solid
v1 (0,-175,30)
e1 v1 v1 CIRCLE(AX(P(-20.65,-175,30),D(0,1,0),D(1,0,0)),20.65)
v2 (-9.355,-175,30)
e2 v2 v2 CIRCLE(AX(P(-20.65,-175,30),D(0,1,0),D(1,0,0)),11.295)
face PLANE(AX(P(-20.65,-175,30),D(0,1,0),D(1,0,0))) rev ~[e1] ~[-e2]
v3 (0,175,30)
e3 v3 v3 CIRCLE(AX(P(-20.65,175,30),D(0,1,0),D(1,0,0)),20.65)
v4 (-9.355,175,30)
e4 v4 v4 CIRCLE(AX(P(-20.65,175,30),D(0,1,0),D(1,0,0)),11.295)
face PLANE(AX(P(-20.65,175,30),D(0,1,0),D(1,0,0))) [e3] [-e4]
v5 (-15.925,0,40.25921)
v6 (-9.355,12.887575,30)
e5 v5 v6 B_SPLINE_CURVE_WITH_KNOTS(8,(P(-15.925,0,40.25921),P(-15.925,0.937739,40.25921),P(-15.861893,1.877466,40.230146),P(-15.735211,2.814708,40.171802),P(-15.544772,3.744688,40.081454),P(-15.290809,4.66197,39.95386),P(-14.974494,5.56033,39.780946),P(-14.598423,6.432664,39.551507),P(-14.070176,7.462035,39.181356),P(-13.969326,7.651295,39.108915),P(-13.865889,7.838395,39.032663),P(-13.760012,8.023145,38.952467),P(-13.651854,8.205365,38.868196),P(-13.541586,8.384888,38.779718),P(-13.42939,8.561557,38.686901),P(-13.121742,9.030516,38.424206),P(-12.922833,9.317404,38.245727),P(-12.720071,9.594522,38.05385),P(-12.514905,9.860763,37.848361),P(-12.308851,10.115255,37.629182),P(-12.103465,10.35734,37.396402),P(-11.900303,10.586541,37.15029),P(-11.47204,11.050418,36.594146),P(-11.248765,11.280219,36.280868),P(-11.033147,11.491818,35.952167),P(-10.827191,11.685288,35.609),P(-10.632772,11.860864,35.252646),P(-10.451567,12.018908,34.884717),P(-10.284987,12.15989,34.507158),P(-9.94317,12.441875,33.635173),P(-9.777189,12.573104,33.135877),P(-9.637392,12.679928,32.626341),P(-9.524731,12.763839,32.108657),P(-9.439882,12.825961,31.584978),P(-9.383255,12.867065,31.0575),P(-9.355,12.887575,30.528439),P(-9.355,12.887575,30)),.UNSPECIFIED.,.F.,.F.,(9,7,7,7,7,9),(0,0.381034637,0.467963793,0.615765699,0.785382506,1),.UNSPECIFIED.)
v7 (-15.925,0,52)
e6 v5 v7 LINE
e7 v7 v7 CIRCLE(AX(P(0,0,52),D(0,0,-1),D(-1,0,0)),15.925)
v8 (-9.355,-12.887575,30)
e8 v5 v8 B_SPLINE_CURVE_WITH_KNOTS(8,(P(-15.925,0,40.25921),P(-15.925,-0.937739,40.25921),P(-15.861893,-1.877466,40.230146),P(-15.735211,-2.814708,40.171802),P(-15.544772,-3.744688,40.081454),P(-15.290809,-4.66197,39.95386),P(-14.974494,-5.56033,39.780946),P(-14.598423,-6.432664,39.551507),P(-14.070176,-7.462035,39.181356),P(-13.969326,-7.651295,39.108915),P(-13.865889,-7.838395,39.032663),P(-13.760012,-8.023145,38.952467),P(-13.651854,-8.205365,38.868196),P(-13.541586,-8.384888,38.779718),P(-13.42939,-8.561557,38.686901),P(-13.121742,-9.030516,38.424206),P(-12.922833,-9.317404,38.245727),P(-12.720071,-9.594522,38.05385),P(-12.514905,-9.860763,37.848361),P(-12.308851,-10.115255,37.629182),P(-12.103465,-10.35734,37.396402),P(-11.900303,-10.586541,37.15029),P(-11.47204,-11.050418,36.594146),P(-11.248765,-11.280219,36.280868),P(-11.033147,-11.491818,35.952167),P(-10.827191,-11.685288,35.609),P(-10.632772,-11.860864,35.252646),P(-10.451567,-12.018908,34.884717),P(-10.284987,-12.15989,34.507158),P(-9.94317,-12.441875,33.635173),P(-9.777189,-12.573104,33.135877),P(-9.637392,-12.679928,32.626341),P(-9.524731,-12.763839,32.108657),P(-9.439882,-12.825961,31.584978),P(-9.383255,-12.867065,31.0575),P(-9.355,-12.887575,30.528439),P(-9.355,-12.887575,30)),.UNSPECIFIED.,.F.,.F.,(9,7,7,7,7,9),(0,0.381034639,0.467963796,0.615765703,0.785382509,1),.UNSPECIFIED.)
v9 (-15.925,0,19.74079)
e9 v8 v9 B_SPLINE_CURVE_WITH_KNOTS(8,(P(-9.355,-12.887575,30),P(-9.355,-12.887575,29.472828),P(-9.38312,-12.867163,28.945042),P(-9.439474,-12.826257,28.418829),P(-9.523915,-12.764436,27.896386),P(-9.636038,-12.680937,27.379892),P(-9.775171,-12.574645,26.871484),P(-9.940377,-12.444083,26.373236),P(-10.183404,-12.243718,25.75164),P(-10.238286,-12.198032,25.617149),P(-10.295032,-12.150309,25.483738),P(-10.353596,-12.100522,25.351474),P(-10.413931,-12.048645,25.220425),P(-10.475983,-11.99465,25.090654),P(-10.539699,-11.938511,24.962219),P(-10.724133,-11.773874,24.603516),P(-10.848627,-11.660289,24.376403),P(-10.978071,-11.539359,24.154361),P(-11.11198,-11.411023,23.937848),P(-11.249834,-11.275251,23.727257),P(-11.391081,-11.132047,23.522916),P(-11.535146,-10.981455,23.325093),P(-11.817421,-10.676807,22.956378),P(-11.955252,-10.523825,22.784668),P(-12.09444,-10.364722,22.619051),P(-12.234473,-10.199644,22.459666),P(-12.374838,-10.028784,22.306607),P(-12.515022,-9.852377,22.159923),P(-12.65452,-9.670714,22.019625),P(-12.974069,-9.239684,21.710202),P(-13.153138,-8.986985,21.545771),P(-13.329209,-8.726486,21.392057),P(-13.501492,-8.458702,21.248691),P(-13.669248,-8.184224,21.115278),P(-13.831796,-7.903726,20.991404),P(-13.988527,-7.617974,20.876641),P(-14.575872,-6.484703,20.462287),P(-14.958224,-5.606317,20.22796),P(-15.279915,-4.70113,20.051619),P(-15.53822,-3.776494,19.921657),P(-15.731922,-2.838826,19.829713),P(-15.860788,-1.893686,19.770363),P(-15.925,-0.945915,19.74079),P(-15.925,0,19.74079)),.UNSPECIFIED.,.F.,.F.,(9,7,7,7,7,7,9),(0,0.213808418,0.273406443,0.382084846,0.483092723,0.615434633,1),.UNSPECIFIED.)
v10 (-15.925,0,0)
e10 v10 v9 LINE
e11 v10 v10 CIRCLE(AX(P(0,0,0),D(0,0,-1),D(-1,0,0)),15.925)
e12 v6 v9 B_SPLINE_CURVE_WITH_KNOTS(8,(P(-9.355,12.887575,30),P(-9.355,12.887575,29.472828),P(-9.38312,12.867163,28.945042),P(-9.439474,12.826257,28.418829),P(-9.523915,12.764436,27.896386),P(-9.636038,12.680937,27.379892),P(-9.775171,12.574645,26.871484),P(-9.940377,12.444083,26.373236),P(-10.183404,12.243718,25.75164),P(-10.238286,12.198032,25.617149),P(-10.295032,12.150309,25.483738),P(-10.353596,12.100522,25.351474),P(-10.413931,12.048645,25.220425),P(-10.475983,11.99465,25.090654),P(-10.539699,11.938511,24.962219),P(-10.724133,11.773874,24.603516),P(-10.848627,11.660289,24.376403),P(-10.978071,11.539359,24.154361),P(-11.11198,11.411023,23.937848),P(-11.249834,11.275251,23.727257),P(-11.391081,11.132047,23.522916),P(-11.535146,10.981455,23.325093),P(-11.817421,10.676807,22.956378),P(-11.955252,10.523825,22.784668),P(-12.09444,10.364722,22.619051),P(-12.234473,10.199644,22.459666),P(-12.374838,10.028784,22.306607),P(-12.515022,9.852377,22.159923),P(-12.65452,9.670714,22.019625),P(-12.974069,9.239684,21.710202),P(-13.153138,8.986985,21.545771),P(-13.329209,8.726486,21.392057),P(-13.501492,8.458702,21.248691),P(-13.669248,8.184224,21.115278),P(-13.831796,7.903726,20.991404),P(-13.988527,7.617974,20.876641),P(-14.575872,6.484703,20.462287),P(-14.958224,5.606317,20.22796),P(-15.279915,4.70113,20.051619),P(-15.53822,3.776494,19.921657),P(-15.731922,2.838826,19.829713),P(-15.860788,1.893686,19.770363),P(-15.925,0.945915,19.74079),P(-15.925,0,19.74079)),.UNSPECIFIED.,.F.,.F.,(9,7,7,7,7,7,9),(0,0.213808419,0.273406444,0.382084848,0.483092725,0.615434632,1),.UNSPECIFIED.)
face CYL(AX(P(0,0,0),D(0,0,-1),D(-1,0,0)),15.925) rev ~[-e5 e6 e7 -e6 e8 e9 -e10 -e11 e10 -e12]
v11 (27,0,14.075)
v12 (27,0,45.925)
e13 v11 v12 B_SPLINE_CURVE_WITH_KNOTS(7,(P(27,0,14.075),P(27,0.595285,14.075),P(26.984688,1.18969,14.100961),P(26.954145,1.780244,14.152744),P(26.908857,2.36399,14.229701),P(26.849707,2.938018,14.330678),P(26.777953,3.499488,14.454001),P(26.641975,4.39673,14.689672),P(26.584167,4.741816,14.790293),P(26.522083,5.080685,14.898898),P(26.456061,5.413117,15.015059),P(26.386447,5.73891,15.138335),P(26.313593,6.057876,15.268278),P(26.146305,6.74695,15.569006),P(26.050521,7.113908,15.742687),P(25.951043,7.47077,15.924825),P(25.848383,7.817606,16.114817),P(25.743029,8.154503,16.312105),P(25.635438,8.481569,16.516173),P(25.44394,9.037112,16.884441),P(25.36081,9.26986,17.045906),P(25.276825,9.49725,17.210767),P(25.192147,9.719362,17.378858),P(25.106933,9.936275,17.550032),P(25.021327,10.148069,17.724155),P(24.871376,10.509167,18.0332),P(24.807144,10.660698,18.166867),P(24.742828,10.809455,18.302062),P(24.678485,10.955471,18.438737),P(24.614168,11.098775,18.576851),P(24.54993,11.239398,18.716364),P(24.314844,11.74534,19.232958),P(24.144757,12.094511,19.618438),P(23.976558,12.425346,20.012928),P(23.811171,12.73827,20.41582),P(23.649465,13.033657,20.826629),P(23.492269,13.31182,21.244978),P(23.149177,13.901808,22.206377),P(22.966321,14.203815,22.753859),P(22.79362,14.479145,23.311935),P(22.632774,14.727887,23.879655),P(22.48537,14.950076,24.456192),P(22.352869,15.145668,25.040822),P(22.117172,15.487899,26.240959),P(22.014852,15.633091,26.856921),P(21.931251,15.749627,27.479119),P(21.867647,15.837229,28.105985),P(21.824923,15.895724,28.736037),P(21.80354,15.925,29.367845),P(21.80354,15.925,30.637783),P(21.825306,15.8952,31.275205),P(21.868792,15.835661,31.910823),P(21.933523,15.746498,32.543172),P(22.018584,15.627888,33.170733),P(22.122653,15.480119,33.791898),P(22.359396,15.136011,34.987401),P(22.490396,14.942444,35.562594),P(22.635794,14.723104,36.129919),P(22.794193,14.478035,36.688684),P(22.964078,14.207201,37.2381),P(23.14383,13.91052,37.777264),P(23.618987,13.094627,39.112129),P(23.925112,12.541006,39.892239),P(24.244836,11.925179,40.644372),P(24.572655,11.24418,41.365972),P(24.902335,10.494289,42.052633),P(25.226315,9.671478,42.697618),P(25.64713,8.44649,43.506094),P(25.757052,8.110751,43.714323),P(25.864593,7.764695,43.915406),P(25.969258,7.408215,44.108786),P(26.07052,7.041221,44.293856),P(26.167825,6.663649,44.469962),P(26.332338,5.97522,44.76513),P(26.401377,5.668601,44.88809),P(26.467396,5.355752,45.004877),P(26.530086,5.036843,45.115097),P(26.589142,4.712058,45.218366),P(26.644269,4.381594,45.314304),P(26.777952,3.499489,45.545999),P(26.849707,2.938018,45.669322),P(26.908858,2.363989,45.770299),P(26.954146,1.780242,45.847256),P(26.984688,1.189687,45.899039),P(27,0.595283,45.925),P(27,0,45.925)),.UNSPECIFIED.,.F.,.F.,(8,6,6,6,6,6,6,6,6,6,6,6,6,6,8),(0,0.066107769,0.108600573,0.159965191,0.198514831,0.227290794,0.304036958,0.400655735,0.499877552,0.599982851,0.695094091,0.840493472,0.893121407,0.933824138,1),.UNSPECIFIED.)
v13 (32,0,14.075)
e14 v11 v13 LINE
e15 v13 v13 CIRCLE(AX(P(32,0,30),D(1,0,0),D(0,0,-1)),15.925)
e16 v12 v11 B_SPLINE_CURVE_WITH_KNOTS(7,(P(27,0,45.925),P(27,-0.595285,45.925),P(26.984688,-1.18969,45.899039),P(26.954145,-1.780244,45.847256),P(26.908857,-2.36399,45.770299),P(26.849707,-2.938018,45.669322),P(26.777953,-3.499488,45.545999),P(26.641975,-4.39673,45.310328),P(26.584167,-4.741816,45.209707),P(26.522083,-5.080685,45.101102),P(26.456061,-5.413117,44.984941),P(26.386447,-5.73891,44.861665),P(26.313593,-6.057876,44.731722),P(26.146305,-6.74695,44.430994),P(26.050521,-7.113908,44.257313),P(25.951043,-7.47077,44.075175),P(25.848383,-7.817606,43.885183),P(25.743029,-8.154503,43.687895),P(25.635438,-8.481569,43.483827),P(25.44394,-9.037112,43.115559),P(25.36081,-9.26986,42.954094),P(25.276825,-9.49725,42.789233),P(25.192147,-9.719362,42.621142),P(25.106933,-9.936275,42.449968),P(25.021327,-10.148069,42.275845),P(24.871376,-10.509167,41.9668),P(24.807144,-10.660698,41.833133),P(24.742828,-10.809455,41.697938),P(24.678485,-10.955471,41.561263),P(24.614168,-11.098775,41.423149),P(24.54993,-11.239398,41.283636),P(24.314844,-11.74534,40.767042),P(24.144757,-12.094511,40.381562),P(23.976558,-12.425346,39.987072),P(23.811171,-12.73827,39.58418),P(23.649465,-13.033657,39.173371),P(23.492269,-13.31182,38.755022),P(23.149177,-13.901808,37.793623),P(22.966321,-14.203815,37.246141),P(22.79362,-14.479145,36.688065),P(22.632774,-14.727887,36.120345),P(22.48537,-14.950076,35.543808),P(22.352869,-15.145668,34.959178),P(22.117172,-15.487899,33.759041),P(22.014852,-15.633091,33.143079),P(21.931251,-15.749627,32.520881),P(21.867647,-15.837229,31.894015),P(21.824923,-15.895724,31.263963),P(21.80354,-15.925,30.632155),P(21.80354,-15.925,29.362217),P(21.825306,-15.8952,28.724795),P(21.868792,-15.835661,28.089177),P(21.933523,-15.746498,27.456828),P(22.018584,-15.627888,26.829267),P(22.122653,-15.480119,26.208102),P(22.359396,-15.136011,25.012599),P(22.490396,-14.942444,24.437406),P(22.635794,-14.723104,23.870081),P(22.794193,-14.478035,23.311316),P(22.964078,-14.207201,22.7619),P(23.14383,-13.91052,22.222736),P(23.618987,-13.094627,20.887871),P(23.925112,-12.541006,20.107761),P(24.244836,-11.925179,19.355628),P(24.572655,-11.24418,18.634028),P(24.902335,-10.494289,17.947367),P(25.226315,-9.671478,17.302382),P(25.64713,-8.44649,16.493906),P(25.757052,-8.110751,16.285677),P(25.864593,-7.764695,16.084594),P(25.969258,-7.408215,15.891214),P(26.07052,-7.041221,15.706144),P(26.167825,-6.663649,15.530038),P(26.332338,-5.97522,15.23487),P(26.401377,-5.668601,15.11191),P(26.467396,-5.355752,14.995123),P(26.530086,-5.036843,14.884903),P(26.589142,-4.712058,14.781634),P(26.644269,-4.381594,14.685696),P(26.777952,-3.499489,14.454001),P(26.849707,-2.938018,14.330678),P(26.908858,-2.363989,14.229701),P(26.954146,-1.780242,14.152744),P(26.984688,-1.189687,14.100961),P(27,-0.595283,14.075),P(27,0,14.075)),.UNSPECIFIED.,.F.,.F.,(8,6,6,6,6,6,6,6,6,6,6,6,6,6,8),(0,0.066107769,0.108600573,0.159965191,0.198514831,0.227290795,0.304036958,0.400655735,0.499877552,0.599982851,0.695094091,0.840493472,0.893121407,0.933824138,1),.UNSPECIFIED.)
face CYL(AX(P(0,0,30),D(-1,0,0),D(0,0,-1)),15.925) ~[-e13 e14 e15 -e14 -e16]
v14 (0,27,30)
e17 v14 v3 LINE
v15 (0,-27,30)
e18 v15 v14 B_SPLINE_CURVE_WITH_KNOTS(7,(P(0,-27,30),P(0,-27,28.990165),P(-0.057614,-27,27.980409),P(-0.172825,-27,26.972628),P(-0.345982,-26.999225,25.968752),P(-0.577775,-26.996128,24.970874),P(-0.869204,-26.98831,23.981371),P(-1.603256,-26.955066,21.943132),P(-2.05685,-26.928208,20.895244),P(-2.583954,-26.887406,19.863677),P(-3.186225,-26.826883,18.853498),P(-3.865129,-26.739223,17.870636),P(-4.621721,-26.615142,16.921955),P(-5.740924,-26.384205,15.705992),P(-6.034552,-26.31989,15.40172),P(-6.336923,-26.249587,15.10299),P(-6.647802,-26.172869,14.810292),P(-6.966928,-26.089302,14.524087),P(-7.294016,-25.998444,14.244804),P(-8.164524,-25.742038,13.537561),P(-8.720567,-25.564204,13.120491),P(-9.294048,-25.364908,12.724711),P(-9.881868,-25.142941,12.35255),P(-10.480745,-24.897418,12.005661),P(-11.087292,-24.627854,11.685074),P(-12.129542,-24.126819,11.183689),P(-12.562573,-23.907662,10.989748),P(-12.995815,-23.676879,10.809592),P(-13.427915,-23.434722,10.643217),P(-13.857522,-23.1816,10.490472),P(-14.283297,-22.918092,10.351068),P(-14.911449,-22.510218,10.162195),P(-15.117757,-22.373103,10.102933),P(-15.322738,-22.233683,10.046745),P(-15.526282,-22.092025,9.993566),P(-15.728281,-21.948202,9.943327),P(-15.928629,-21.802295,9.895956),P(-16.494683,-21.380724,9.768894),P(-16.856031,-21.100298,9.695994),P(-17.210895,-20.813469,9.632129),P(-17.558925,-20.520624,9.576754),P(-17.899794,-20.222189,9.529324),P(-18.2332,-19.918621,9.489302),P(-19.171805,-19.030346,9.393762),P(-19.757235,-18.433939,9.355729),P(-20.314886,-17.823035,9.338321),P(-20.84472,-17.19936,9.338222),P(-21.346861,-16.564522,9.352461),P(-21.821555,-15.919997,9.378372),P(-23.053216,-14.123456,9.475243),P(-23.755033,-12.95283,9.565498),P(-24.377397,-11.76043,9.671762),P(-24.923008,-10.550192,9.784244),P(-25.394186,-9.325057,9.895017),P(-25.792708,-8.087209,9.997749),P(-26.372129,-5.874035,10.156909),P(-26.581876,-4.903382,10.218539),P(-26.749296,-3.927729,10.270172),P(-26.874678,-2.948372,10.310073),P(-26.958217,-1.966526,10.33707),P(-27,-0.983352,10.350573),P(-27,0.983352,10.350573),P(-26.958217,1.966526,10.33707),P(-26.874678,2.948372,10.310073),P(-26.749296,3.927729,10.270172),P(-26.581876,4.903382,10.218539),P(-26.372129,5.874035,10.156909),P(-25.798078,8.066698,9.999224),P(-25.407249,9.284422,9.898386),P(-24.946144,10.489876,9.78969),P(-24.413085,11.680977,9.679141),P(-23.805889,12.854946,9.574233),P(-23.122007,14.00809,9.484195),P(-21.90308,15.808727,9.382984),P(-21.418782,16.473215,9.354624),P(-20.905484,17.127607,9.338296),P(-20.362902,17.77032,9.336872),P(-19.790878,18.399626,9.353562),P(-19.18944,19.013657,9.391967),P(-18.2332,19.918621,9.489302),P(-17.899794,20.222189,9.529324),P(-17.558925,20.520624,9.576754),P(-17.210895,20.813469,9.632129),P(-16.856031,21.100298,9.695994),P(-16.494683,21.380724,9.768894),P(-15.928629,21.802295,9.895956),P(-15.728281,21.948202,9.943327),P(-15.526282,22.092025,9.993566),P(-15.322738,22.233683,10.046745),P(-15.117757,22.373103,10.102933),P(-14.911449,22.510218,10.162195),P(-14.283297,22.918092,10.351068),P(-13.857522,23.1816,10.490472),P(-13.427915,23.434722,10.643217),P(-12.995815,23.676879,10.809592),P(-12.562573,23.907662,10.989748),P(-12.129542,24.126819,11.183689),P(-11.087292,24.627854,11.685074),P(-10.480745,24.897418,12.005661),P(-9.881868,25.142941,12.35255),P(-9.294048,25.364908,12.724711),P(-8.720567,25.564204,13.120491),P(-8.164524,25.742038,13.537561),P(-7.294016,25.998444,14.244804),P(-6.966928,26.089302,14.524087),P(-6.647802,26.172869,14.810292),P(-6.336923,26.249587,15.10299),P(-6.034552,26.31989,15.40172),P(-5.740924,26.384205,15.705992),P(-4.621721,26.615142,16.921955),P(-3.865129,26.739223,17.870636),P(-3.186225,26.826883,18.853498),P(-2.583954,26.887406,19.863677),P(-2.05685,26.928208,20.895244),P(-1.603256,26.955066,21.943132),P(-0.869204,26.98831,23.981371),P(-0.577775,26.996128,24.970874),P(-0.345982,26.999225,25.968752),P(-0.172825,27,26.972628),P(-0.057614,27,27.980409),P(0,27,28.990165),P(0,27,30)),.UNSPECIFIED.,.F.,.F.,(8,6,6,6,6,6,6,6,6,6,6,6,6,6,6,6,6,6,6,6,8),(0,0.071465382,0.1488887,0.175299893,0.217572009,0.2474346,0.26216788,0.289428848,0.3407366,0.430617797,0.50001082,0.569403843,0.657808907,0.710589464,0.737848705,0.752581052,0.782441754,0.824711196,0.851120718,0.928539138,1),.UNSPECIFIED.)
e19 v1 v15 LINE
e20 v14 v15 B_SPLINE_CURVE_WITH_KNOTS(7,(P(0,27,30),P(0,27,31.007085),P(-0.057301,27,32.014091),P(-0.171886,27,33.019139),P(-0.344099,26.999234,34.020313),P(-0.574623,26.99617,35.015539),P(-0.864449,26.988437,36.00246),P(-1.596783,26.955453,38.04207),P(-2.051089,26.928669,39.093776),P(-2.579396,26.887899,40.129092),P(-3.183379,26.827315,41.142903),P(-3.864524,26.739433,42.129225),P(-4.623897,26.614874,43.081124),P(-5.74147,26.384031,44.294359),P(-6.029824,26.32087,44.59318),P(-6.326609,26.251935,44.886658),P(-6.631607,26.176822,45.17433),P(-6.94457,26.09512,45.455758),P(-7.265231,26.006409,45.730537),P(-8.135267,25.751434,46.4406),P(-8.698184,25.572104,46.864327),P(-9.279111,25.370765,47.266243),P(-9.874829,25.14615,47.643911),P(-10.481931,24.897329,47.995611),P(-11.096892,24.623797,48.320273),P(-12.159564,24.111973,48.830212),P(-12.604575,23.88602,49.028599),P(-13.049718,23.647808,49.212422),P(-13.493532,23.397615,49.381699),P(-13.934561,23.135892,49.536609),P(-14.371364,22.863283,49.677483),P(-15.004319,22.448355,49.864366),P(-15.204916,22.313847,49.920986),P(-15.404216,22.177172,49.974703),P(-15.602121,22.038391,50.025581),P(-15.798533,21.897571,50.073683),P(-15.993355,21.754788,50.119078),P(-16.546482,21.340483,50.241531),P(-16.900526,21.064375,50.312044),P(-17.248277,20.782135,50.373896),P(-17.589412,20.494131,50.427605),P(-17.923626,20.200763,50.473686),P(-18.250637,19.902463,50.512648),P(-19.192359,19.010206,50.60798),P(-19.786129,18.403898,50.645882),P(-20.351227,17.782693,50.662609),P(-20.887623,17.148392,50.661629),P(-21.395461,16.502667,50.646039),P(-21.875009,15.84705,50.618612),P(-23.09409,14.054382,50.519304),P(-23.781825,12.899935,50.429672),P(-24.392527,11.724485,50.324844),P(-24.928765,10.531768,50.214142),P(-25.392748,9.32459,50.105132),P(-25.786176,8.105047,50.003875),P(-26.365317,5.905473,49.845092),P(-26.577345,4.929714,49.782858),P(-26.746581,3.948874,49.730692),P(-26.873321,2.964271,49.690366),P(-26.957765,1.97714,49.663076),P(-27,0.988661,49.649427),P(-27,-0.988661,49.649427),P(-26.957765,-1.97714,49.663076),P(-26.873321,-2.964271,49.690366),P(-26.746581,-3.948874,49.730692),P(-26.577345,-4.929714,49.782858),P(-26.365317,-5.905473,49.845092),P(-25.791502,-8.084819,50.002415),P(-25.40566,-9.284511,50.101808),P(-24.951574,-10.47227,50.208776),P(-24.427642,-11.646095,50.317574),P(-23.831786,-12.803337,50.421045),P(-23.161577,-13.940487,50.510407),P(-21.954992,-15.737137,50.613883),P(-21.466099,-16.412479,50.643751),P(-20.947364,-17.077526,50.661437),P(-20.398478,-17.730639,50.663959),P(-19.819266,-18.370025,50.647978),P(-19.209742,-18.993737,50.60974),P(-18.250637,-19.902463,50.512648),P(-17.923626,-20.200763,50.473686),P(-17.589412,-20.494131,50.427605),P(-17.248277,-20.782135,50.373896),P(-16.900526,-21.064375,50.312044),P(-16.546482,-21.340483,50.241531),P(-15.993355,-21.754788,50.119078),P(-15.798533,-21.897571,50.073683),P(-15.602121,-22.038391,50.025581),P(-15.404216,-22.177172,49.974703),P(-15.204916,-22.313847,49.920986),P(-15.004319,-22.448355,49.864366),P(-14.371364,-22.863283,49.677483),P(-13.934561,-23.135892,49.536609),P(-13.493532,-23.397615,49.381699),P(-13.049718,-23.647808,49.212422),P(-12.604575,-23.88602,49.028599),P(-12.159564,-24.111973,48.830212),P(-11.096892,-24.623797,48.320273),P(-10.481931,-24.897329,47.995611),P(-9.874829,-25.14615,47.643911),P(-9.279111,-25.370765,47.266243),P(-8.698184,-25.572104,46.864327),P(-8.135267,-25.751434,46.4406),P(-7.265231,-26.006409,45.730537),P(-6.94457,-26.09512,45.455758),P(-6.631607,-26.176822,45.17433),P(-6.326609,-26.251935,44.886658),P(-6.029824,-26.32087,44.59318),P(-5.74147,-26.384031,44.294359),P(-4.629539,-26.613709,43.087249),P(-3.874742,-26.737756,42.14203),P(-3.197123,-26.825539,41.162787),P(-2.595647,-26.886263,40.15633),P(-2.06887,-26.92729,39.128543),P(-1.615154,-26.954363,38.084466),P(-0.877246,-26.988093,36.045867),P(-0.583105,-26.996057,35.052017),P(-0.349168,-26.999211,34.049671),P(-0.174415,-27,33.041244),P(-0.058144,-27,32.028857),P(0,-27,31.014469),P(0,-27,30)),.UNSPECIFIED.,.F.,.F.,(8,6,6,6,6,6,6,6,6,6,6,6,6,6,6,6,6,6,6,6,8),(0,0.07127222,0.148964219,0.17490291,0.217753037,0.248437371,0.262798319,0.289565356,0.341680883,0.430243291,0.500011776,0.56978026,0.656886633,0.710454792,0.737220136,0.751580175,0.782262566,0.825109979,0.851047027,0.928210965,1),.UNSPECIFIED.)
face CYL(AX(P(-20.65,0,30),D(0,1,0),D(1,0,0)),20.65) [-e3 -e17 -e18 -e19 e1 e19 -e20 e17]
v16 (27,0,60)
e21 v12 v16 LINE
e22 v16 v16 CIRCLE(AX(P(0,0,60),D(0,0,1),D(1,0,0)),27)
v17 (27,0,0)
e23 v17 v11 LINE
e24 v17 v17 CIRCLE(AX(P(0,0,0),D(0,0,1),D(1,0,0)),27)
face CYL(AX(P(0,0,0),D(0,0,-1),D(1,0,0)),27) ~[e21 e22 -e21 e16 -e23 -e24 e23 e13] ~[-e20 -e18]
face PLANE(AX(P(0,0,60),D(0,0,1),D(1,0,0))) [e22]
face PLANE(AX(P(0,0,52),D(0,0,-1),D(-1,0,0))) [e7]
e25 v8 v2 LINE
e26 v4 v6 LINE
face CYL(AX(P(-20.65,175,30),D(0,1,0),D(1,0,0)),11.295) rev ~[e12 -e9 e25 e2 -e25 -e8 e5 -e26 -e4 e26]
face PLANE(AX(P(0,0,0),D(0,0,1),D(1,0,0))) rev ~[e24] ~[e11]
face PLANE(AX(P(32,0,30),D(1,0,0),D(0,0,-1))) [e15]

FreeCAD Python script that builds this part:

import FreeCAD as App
import Part
import Sketcher
Q = App.Units.Quantity

doc = App.newDocument("Part")
body = doc.addObject("PartDesign::Body", "Body")

sketch1 = body.newObject("Sketcher::SketchObject", "Sketch")
sketch1.AttachmentSupport = (doc.getObject("XY_Plane"), [""])
sketch1.MapMode = "FlatFace"
sketch1.addGeometry(Part.Circle(App.Vector(0, 0, 0), App.Vector(0, 0, 1), 27), False)
sketch1.addConstraint([
    Sketcher.Constraint("Coincident", 0, 3, -1, 1),
    Sketcher.Constraint("Diameter", 0, Q("54 mm")),
])
pad1 = body.newObject("PartDesign::Pad", "Pad")
pad1.Profile = sketch1
pad1.Length = 60

sketch2 = body.newObject("Sketcher::SketchObject", "Sketch001")
sketch2.AttachmentSupport = (doc.getObject("XZ_Plane"), [""])
sketch2.MapMode = "FlatFace"
sketch2.addGeometry(Part.Circle(App.Vector(-21, 30, 0), App.Vector(0, 0, 1), 21), False)
sketch2.addConstraint([
    Sketcher.Constraint("Diameter", 0, Q("41.3 mm")),
    Sketcher.Constraint("DistanceY", -1, 1, 0, 3, Q("30 mm")),
    Sketcher.Constraint("DistanceX", 0, 3, -1, 1, Q("20.65 mm")),
])
pad2 = body.newObject("PartDesign::Pad", "Pad001")
pad2.Profile = sketch2
pad2.Length = 350
pad2.Midplane = True

sketch3 = body.newObject("Sketcher::SketchObject", "Sketch002")
sketch3.AttachmentSupport = (doc.getObject("YZ_Plane"), [""])
sketch3.MapMode = "FlatFace"
sketch3.addGeometry(Part.Circle(App.Vector(0, 30, 0), App.Vector(0, 0, 1), 16), False)
sketch3.addConstraint([
    Sketcher.Constraint("PointOnObject", 0, 3, -2),
    Sketcher.Constraint("Diameter", 0, Q("31.85 mm")),
    Sketcher.Constraint("DistanceY", -1, 1, 0, 3, Q("30 mm")),
])
pad3 = body.newObject("PartDesign::Pad", "Pad002")
pad3.Profile = sketch3
pad3.Length = 32

sketch4 = body.newObject("Sketcher::SketchObject", "Sketch003")
sketch4.AttachmentSupport = (doc.getObject("XZ_Plane"), [""])
sketch4.MapMode = "FlatFace"
sketch4.AttachmentOffset = App.Placement(App.Vector(0, 0, -175), App.Rotation())
sketch4.addGeometry(Part.Circle(App.Vector(-21, 30, 0), App.Vector(0, 0, 1), 11), False)
sketch4.addConstraint([
    Sketcher.Constraint("Diameter", 0, Q("22.59 mm")),
    Sketcher.Constraint("DistanceY", -1, 1, 0, 3, Q("30 mm")),
    Sketcher.Constraint("DistanceX", 0, 3, -1, 1, Q("20.65 mm")),
])
pocket1 = body.newObject("PartDesign::Pocket", "Pocket")
pocket1.Profile = sketch4
pocket1.Type = "ThroughAll"
pocket1.Reversed = True

sketch5 = body.newObject("Sketcher::SketchObject", "Sketch004")
sketch5.AttachmentSupport = (doc.getObject("XY_Plane"), [""])
sketch5.MapMode = "FlatFace"
sketch5.addGeometry(Part.Circle(App.Vector(0, 0, 0), App.Vector(0, 0, 1), 16), False)
sketch5.addConstraint([
    Sketcher.Constraint("Coincident", 0, 3, -1, 1),
    Sketcher.Constraint("Diameter", 0, Q("31.85 mm")),
])
pocket2 = body.newObject("PartDesign::Pocket", "Pocket001")
pocket2.Profile = sketch5
pocket2.Length = 52
pocket2.Reversed = True

doc.recompute()
